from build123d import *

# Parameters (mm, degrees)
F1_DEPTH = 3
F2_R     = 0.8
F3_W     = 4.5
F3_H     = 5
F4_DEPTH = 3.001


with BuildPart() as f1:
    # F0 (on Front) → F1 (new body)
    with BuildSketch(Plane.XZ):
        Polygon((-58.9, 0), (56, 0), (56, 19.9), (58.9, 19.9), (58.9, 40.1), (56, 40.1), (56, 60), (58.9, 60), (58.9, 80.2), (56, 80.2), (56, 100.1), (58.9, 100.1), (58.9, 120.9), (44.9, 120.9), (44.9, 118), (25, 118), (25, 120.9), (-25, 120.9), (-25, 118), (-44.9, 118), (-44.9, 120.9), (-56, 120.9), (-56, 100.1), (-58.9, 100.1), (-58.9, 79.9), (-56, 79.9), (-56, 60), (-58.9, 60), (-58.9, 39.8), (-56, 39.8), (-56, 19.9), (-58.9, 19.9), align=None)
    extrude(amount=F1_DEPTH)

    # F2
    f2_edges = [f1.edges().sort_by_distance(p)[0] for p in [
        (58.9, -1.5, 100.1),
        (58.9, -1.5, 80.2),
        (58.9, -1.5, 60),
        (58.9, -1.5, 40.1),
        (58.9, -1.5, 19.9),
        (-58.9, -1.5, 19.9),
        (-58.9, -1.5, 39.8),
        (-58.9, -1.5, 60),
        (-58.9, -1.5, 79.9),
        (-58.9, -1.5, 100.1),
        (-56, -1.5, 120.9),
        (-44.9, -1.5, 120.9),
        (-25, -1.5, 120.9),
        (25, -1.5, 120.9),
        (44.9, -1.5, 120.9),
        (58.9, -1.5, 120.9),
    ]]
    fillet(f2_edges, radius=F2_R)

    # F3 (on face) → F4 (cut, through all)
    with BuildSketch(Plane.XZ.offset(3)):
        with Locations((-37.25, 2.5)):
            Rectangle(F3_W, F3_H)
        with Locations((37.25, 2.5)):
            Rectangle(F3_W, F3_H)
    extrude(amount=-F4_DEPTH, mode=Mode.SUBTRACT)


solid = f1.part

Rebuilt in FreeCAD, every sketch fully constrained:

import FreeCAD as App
import Part
import Sketcher
from FreeCAD import Vector


def edges_at(feature, points):
    """Names of the edges that pass closest to the given points."""
    edges = feature.Shape.Edges
    near = lambda p: min(range(len(edges)), key=lambda i: edges[i].distToShape(Part.Vertex(*p))[0])
    return sorted({f"Edge{near(p) + 1}" for p in points})

doc = App.newDocument("Part")
body = doc.addObject("PartDesign::Body", "Body")

# Sketch on XZ plane
sketch1 = body.newObject("Sketcher::SketchObject", "Sketch")
sketch1.AttachmentSupport = (doc.getObject("XZ_Plane"), [""])
sketch1.MapMode = "FlatFace"
sketch1.addGeometry(Part.LineSegment(Vector(-58.9, 0, 0), Vector(56, 0, 0)), False)
sketch1.addGeometry(Part.LineSegment(Vector(56, 0, 0), Vector(56, 19.9, 0)), False)
sketch1.addGeometry(Part.LineSegment(Vector(56, 19.9, 0), Vector(58.9, 19.9, 0)), False)
sketch1.addGeometry(Part.LineSegment(Vector(58.9, 19.9, 0), Vector(58.9, 40.1, 0)), False)
sketch1.addGeometry(Part.LineSegment(Vector(58.9, 40.1, 0), Vector(56, 40.1, 0)), False)
sketch1.addGeometry(Part.LineSegment(Vector(56, 40.1, 0), Vector(56, 60, 0)), False)
sketch1.addGeometry(Part.LineSegment(Vector(56, 60, 0), Vector(58.9, 60, 0)), False)
sketch1.addGeometry(Part.LineSegment(Vector(58.9, 60, 0), Vector(58.9, 80.2, 0)), False)
sketch1.addGeometry(Part.LineSegment(Vector(58.9, 80.2, 0), Vector(56, 80.2, 0)), False)
sketch1.addGeometry(Part.LineSegment(Vector(56, 80.2, 0), Vector(56, 100.1, 0)), False)
sketch1.addGeometry(Part.LineSegment(Vector(56, 100.1, 0), Vector(58.9, 100.1, 0)), False)
sketch1.addGeometry(Part.LineSegment(Vector(58.9, 100.1, 0), Vector(58.9, 120.9, 0)), False)
sketch1.addGeometry(Part.LineSegment(Vector(58.9, 120.9, 0), Vector(44.9, 120.9, 0)), False)
sketch1.addGeometry(Part.LineSegment(Vector(44.9, 120.9, 0), Vector(44.9, 118, 0)), False)
sketch1.addGeometry(Part.LineSegment(Vector(44.9, 118, 0), Vector(25, 118, 0)), False)
sketch1.addGeometry(Part.LineSegment(Vector(25, 118, 0), Vector(25, 120.9, 0)), False)
sketch1.addGeometry(Part.LineSegment(Vector(25, 120.9, 0), Vector(-25, 120.9, 0)), False)
sketch1.addGeometry(Part.LineSegment(Vector(-25, 120.9, 0), Vector(-25, 118, 0)), False)
sketch1.addGeometry(Part.LineSegment(Vector(-25, 118, 0), Vector(-44.9, 118, 0)), False)
sketch1.addGeometry(Part.LineSegment(Vector(-44.9, 118, 0), Vector(-44.9, 120.9, 0)), False)
sketch1.addGeometry(Part.LineSegment(Vector(-44.9, 120.9, 0), Vector(-56, 120.9, 0)), False)
sketch1.addGeometry(Part.LineSegment(Vector(-56, 120.9, 0), Vector(-56, 100.1, 0)), False)
sketch1.addGeometry(Part.LineSegment(Vector(-56, 100.1, 0), Vector(-58.9, 100.1, 0)), False)
sketch1.addGeometry(Part.LineSegment(Vector(-58.9, 100.1, 0), Vector(-58.9, 79.9, 0)), False)
sketch1.addGeometry(Part.LineSegment(Vector(-58.9, 79.9, 0), Vector(-56, 79.9, 0)), False)
sketch1.addGeometry(Part.LineSegment(Vector(-56, 79.9, 0), Vector(-56, 60, 0)), False)
sketch1.addGeometry(Part.LineSegment(Vector(-56, 60, 0), Vector(-58.9, 60, 0)), False)
sketch1.addGeometry(Part.LineSegment(Vector(-58.9, 60, 0), Vector(-58.9, 39.8, 0)), False)
sketch1.addGeometry(Part.LineSegment(Vector(-58.9, 39.8, 0), Vector(-56, 39.8, 0)), False)
sketch1.addGeometry(Part.LineSegment(Vector(-56, 39.8, 0), Vector(-56, 19.9, 0)), False)
sketch1.addGeometry(Part.LineSegment(Vector(-56, 19.9, 0), Vector(-58.9, 19.9, 0)), False)
sketch1.addGeometry(Part.LineSegment(Vector(-58.9, 19.9, 0), Vector(-58.9, 0, 0)), False)
sketch1.addConstraint(Sketcher.Constraint("Coincident", 0, 2, 1, 1))
sketch1.addConstraint(Sketcher.Constraint("Coincident", 1, 2, 2, 1))
sketch1.addConstraint(Sketcher.Constraint("Coincident", 2, 2, 3, 1))
sketch1.addConstraint(Sketcher.Constraint("Coincident", 3, 2, 4, 1))
sketch1.addConstraint(Sketcher.Constraint("Coincident", 4, 2, 5, 1))
sketch1.addConstraint(Sketcher.Constraint("Coincident", 5, 2, 6, 1))
sketch1.addConstraint(Sketcher.Constraint("Coincident", 6, 2, 7, 1))
sketch1.addConstraint(Sketcher.Constraint("Coincident", 7, 2, 8, 1))
sketch1.addConstraint(Sketcher.Constraint("Coincident", 8, 2, 9, 1))
sketch1.addConstraint(Sketcher.Constraint("Coincident", 9, 2, 10, 1))
sketch1.addConstraint(Sketcher.Constraint("Coincident", 10, 2, 11, 1))
sketch1.addConstraint(Sketcher.Constraint("Coincident", 11, 2, 12, 1))
sketch1.addConstraint(Sketcher.Constraint("Coincident", 12, 2, 13, 1))
sketch1.addConstraint(Sketcher.Constraint("Coincident", 13, 2, 14, 1))
sketch1.addConstraint(Sketcher.Constraint("Coincident", 14, 2, 15, 1))
sketch1.addConstraint(Sketcher.Constraint("Coincident", 15, 2, 16, 1))
sketch1.addConstraint(Sketcher.Constraint("Coincident", 16, 2, 17, 1))
sketch1.addConstraint(Sketcher.Constraint("Coincident", 17, 2, 18, 1))
sketch1.addConstraint(Sketcher.Constraint("Coincident", 18, 2, 19, 1))
sketch1.addConstraint(Sketcher.Constraint("Coincident", 19, 2, 20, 1))
sketch1.addConstraint(Sketcher.Constraint("Coincident", 20, 2, 21, 1))
sketch1.addConstraint(Sketcher.Constraint("Coincident", 21, 2, 22, 1))
sketch1.addConstraint(Sketcher.Constraint("Coincident", 22, 2, 23, 1))
sketch1.addConstraint(Sketcher.Constraint("Coincident", 23, 2, 24, 1))
sketch1.addConstraint(Sketcher.Constraint("Coincident", 24, 2, 25, 1))
sketch1.addConstraint(Sketcher.Constraint("Coincident", 25, 2, 26, 1))
sketch1.addConstraint(Sketcher.Constraint("Coincident", 26, 2, 27, 1))
sketch1.addConstraint(Sketcher.Constraint("Coincident", 27, 2, 28, 1))
sketch1.addConstraint(Sketcher.Constraint("Coincident", 28, 2, 29, 1))
sketch1.addConstraint(Sketcher.Constraint("Coincident", 29, 2, 30, 1))
sketch1.addConstraint(Sketcher.Constraint("Coincident", 30, 2, 31, 1))
sketch1.addConstraint(Sketcher.Constraint("Coincident", 31, 2, 0, 1))
sketch1.addConstraint(Sketcher.Constraint("Horizontal", 0))
sketch1.addConstraint(Sketcher.Constraint("Vertical", 1))
sketch1.addConstraint(Sketcher.Constraint("Horizontal", 2))
sketch1.addConstraint(Sketcher.Constraint("Vertical", 3))
sketch1.addConstraint(Sketcher.Constraint("Horizontal", 4))
sketch1.addConstraint(Sketcher.Constraint("Vertical", 5))
sketch1.addConstraint(Sketcher.Constraint("Horizontal", 6))
sketch1.addConstraint(Sketcher.Constraint("Vertical", 7))
sketch1.addConstraint(Sketcher.Constraint("Horizontal", 8))
sketch1.addConstraint(Sketcher.Constraint("Vertical", 9))
sketch1.addConstraint(Sketcher.Constraint("Horizontal", 10))
sketch1.addConstraint(Sketcher.Constraint("Vertical", 11))
sketch1.addConstraint(Sketcher.Constraint("Horizontal", 12))
sketch1.addConstraint(Sketcher.Constraint("Vertical", 13))
sketch1.addConstraint(Sketcher.Constraint("Horizontal", 14))
sketch1.addConstraint(Sketcher.Constraint("Vertical", 15))
sketch1.addConstraint(Sketcher.Constraint("Horizontal", 16))
sketch1.addConstraint(Sketcher.Constraint("Vertical", 17))
sketch1.addConstraint(Sketcher.Constraint("Horizontal", 18))
sketch1.addConstraint(Sketcher.Constraint("Vertical", 19))
sketch1.addConstraint(Sketcher.Constraint("Horizontal", 20))
sketch1.addConstraint(Sketcher.Constraint("Vertical", 21))
sketch1.addConstraint(Sketcher.Constraint("Horizontal", 22))
sketch1.addConstraint(Sketcher.Constraint("Vertical", 23))
sketch1.addConstraint(Sketcher.Constraint("Horizontal", 24))
sketch1.addConstraint(Sketcher.Constraint("Vertical", 25))
sketch1.addConstraint(Sketcher.Constraint("Horizontal", 26))
sketch1.addConstraint(Sketcher.Constraint("Vertical", 27))
sketch1.addConstraint(Sketcher.Constraint("Horizontal", 28))
sketch1.addConstraint(Sketcher.Constraint("Vertical", 29))
sketch1.addConstraint(Sketcher.Constraint("Horizontal", 30))
sketch1.addConstraint(Sketcher.Constraint("Vertical", 31))
sketch1.addConstraint(Sketcher.Constraint("Symmetric", 14, 2, 17, 2, -2))
sketch1.addConstraint(Sketcher.Constraint("Symmetric", 12, 2, 19, 2, -2))
sketch1.addConstraint(Sketcher.Constraint("Symmetric", 9, 2, 21, 2, -2))
sketch1.addConstraint(Sketcher.Constraint("Symmetric", 5, 2, 25, 2, -2))
sketch1.addConstraint(Sketcher.Constraint("Symmetric", 1, 2, 29, 2, -2))
sketch1.addConstraint(Sketcher.Constraint("PointOnObject", 0, 2, -1))
sketch1.addConstraint(Sketcher.Constraint("Horizontal", 12, 2, 15, 2))
sketch1.addConstraint(Sketcher.Constraint("Vertical", 1, 2, 4, 2))
sketch1.addConstraint(Sketcher.Constraint("Vertical", 3, 2, 6, 2))
sketch1.addConstraint(Sketcher.Constraint("Vertical", 5, 2, 8, 2))
sketch1.addConstraint(Sketcher.Constraint("Vertical", 7, 2, 10, 2))
sketch1.addConstraint(Sketcher.Constraint("Vertical", 23, 2, 26, 2))
sketch1.addConstraint(Sketcher.Constraint("Vertical", 27, 2, 30, 2))
sketch1.addConstraint(Sketcher.Constraint("Equal", 10, 22))
sketch1.addConstraint(Sketcher.Constraint("Equal", 18, 1))
sketch1.addConstraint(Sketcher.Constraint("Equal", 1, 5))
sketch1.addConstraint(Sketcher.Constraint("Equal", 3, 7))
sketch1.addConstraint(Sketcher.Constraint("Equal", 5, 9))
sketch1.addConstraint(Sketcher.Constraint("Equal", 30, 13))
sketch1.addConstraint(Sketcher.Constraint("Equal", 7, 23))
sketch1.addConstraint(Sketcher.Constraint("Equal", 23, 27))
sketch1.addConstraint(Sketcher.Constraint("DistanceX", 12, 2, 12, 1, 14.0))
sketch1.addConstraint(Sketcher.Constraint("DistanceX", 16, 2, 16, 1, 50.0))
sketch1.addConstraint(Sketcher.Constraint("DistanceX", 0, 1, 0, 2, 114.9))
sketch1.addConstraint(Sketcher.Constraint("DistanceX", 2, 1, 2, 2, 2.9))
sketch1.addConstraint(Sketcher.Constraint("DistanceY", 3, 1, 3, 2, 20.2))
sketch1.addConstraint(Sketcher.Constraint("DistanceY", 11, 1, 11, 2, 20.8))
pad1 = body.newObject("PartDesign::Pad", "Pad")
pad1.Profile = sketch1
pad1.Length = 3
doc.recompute()

fillet = body.newObject("PartDesign::Fillet", "Fillet")
fillet.Base = (pad1, edges_at(pad1, [
    (58.9, -1.5, 100.1),
    (58.9, -1.5, 80.2),
    (58.9, -1.5, 60),
    (58.9, -1.5, 40.1),
    (58.9, -1.5, 19.9),
    (-58.9, -1.5, 19.9),
    (-58.9, -1.5, 39.8),
    (-58.9, -1.5, 60),
    (-58.9, -1.5, 79.9),
    (-58.9, -1.5, 100.1),
    (-56, -1.5, 120.9),
    (-44.9, -1.5, 120.9),
    (-25, -1.5, 120.9),
    (25, -1.5, 120.9),
    (44.9, -1.5, 120.9),
    (58.9, -1.5, 120.9),
]))
fillet.Radius = 0.8

# Sketch on XZ plane
sketch2 = body.newObject("Sketcher::SketchObject", "Sketch001")
sketch2.AttachmentSupport = (doc.getObject("XZ_Plane"), [""])
sketch2.MapMode = "FlatFace"
sketch2.AttachmentOffset = App.Placement(Vector(0, 0, 3), App.Rotation())
sketch2.addGeometry(Part.LineSegment(Vector(-39.5, 5, 0), Vector(-39.5, 0, 0)), False)
sketch2.addGeometry(Part.LineSegment(Vector(-39.5, 0, 0), Vector(-35, 0, 0)), False)
sketch2.addGeometry(Part.LineSegment(Vector(-35, 0, 0), Vector(-35, 5, 0)), False)
sketch2.addGeometry(Part.LineSegment(Vector(-35, 5, 0), Vector(-39.5, 5, 0)), False)
sketch2.addGeometry(Part.LineSegment(Vector(35, 5, 0), Vector(35, 0, 0)), False)
sketch2.addGeometry(Part.LineSegment(Vector(35, 0, 0), Vector(39.5, 0, 0)), False)
sketch2.addGeometry(Part.LineSegment(Vector(39.5, 0, 0), Vector(39.5, 5, 0)), False)
sketch2.addGeometry(Part.LineSegment(Vector(39.5, 5, 0), Vector(35, 5, 0)), False)
sketch2.addConstraint(Sketcher.Constraint("Coincident", 0, 2, 1, 1))
sketch2.addConstraint(Sketcher.Constraint("Coincident", 1, 2, 2, 1))
sketch2.addConstraint(Sketcher.Constraint("Coincident", 2, 2, 3, 1))
sketch2.addConstraint(Sketcher.Constraint("Coincident", 3, 2, 0, 1))
sketch2.addConstraint(Sketcher.Constraint("Coincident", 4, 2, 5, 1))
sketch2.addConstraint(Sketcher.Constraint("Coincident", 5, 2, 6, 1))
sketch2.addConstraint(Sketcher.Constraint("Coincident", 6, 2, 7, 1))
sketch2.addConstraint(Sketcher.Constraint("Coincident", 7, 2, 4, 1))
sketch2.addConstraint(Sketcher.Constraint("Vertical", 0))
sketch2.addConstraint(Sketcher.Constraint("Horizontal", 1))
sketch2.addConstraint(Sketcher.Constraint("Vertical", 2))
sketch2.addConstraint(Sketcher.Constraint("Horizontal", 3))
sketch2.addConstraint(Sketcher.Constraint("Vertical", 4))
sketch2.addConstraint(Sketcher.Constraint("Horizontal", 5))
sketch2.addConstraint(Sketcher.Constraint("Vertical", 6))
sketch2.addConstraint(Sketcher.Constraint("Horizontal", 7))
sketch2.addConstraint(Sketcher.Constraint("Symmetric", 1, 2, 4, 2, -1, 1))
sketch2.addConstraint(Sketcher.Constraint("Symmetric", 0, 2, 5, 2, -2))
sketch2.addConstraint(Sketcher.Constraint("Horizontal", 3, 2, 6, 2))
sketch2.addConstraint(Sketcher.Constraint("DistanceY", 0, 2, 0, 1, 5.0))
sketch2.addConstraint(Sketcher.Constraint("DistanceX", 1, 1, 1, 2, 4.5))
sketch2.addConstraint(Sketcher.Constraint("DistanceX", 1, 2, -1, 1, 35.0))
pocket1 = body.newObject("PartDesign::Pocket", "Pocket")
pocket1.Profile = sketch2
pocket1.Type = "ThroughAll"

doc.recompute()
